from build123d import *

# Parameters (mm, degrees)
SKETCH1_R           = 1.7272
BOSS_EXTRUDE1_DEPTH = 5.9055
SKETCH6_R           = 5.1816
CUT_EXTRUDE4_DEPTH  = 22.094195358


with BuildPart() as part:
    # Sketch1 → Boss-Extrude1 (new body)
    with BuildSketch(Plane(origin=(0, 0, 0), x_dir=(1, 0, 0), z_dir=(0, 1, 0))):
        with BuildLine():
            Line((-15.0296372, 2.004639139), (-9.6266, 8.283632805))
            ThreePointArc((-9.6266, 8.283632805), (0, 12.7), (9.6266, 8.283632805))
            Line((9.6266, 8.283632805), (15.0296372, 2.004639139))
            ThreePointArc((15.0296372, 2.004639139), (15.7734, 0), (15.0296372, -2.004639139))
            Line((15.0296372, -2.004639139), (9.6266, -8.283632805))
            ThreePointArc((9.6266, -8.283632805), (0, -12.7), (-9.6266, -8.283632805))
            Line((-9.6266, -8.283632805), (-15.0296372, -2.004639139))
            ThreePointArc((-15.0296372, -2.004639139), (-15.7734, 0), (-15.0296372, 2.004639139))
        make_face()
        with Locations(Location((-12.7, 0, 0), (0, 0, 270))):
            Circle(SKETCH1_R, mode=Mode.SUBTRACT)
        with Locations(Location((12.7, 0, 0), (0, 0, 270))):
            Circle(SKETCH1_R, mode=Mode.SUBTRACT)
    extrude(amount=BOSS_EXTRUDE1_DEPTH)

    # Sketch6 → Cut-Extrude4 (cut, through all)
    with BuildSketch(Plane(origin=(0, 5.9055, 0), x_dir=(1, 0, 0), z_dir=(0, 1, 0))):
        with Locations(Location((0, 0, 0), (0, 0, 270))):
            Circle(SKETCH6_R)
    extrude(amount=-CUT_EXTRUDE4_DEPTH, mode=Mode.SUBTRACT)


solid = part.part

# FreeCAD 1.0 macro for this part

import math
import FreeCAD as App
import Part
import Sketcher

V = App.Vector
Q = App.Units.Quantity

doc = App.newDocument("Part")
params = doc.addObject("Spreadsheet::Sheet", "Params")
for row, (alias, value) in enumerate([
    ("sketch1_radius", "0.5 in"),
    ("sketch1_diameter", "0.136 in"),
    ("sketch1_radius2", "0.121 in"),
    ("pad1_length", "0.2325 in"),
    ("sketch2_diameter", "0.408 in"),
], start=1):
    params.set(f"A{row}", alias)
    params.set(f"B{row}", "=" + value)
    params.setAlias(f"B{row}", alias)

body = doc.addObject("PartDesign::Body", "Body")

# Sketch on XZ plane
sketch1 = body.newObject("Sketcher::SketchObject", "Sketch")
sketch1.AttachmentSupport = (doc.getObject("XZ_Plane"), [""])
sketch1.MapMode = "FlatFace"
sketch1.addGeometry(Part.LineSegment(V(-9.6, -8.3, 0), V(-15, -2, 0)), False)
sketch1.addGeometry(Part.ArcOfCircle(Part.Circle(V(-12.7, 0, 0), V(0, 0, 1), 3.1), math.radians(139), math.radians(221)), False)
sketch1.addGeometry(Part.LineSegment(V(-15, 2, 0), V(-9.6, 8.3, 0)), False)
sketch1.addGeometry(Part.ArcOfCircle(Part.Circle(V(0, 0, 0), V(0, 0, 1), 12.7), math.radians(41), math.radians(139)), False)
sketch1.addGeometry(Part.LineSegment(V(9.6, 8.3, 0), V(15, 2, 0)), False)
sketch1.addGeometry(Part.ArcOfCircle(Part.Circle(V(12.7, 0, 0), V(0, 0, 1), 3.1), math.radians(-41), math.radians(41)), False)
sketch1.addGeometry(Part.LineSegment(V(15, -2, 0), V(9.6, -8.3, 0)), False)
sketch1.addGeometry(Part.ArcOfCircle(Part.Circle(V(0, 0, 0), V(0, 0, 1), 12.7), math.radians(-139), math.radians(-41)), False)
sketch1.addGeometry(Part.Circle(V(12.7, 0, 0), V(0, 0, 1), 1.7), False)
sketch1.addGeometry(Part.Circle(V(-12.7, 0, 0), V(0, 0, 1), 1.7), False)
sketch1.addConstraint(Sketcher.Constraint("Tangent", 0, 2, 1, 2))
sketch1.addConstraint(Sketcher.Constraint("Tangent", 1, 1, 2, 1))
sketch1.addConstraint(Sketcher.Constraint("Tangent", 2, 2, 3, 2))
sketch1.addConstraint(Sketcher.Constraint("Tangent", 3, 1, 4, 1))
sketch1.addConstraint(Sketcher.Constraint("Tangent", 4, 2, 5, 2))
sketch1.addConstraint(Sketcher.Constraint("Tangent", 5, 1, 6, 1))
sketch1.addConstraint(Sketcher.Constraint("Tangent", 6, 2, 7, 2))
sketch1.addConstraint(Sketcher.Constraint("Tangent", 7, 1, 0, 1))
sketch1.addConstraint(Sketcher.Constraint("Coincident", 3, 3, -1, 1))
sketch1.addConstraint(Sketcher.Constraint("Coincident", 7, 3, -1, 1))
sketch1.addConstraint(Sketcher.Constraint("Coincident", 8, 3, 5, 3))
sketch1.addConstraint(Sketcher.Constraint("Coincident", 9, 3, 1, 3))
sketch1.addConstraint(Sketcher.Constraint("Equal", 1, 5))
sketch1.addConstraint(Sketcher.Constraint("Equal", 3, 7))
sketch1.addConstraint(Sketcher.Constraint("Equal", 8, 9))
sketch1.addConstraint(Sketcher.Constraint("Symmetric", 1, 3, 5, 3, -1, 1))
sketch1.addConstraint(Sketcher.Constraint("PointOnObject", 1, 3, -1))
sketch1.addConstraint(Sketcher.Constraint("Radius", 3, Q("0.5 in")))
sketch1.addConstraint(Sketcher.Constraint("Diameter", 8, Q("0.136 in")))
sketch1.addConstraint(Sketcher.Constraint("Radius", 1, Q("0.121 in")))
sketch1.addConstraint(Sketcher.Constraint("DistanceX", 1, 3, 5, 3, Q("1 in")))
sketch1.setExpression("Constraints[17]", "Params.sketch1_radius")
sketch1.setExpression("Constraints[18]", "Params.sketch1_diameter")
sketch1.setExpression("Constraints[19]", "Params.sketch1_radius2")
pad1 = body.newObject("PartDesign::Pad", "Pad")
pad1.Profile = sketch1
pad1.setExpression("Length", "Params.pad1_length")
pad1.Reversed = True

# Sketch on XZ plane
sketch2 = body.newObject("Sketcher::SketchObject", "Sketch001")
sketch2.AttachmentSupport = (doc.getObject("XZ_Plane"), [""])
sketch2.MapMode = "FlatFace"
sketch2.AttachmentOffset = App.Placement(V(0, 0, -0.2325 * 25.4), App.Rotation())
sketch2.addGeometry(Part.Circle(V(0, 0, 0), V(0, 0, 1), 5), False)
sketch2.addConstraint(Sketcher.Constraint("Coincident", 0, 3, -1, 1))
sketch2.addConstraint(Sketcher.Constraint("Diameter", 0, Q("0.408 in")))
sketch2.setExpression("Constraints[1]", "Params.sketch2_diameter")
pocket1 = body.newObject("PartDesign::Pocket", "Pocket")
pocket1.Profile = sketch2
pocket1.Type = "ThroughAll"
pocket1.Reversed = True

doc.recompute()
